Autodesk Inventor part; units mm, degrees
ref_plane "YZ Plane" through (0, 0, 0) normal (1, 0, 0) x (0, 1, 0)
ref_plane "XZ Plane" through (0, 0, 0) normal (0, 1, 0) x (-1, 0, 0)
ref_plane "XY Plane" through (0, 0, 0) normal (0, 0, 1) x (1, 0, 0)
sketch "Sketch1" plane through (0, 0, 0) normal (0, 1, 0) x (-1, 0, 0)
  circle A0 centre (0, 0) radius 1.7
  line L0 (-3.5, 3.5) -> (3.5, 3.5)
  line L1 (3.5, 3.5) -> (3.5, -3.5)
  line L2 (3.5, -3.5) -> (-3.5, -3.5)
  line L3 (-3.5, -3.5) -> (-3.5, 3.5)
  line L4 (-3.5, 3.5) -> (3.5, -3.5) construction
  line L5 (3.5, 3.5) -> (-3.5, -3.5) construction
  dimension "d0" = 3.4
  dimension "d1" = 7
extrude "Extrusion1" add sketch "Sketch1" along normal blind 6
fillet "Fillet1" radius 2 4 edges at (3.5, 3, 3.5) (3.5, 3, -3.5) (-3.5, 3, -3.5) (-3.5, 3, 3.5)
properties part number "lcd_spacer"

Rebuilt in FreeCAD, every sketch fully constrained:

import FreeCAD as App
import Part
import Sketcher
from FreeCAD import Vector
Q = App.Units.Quantity


def edges_at(feature, points):
    """Names of the edges that pass closest to the given points."""
    edges = feature.Shape.Edges
    near = lambda p: min(range(len(edges)), key=lambda i: edges[i].distToShape(Part.Vertex(*p))[0])
    return sorted({f"Edge{near(p) + 1}" for p in points})

doc = App.newDocument("Part")
body = doc.addObject("PartDesign::Body", "Body")

sketch1 = doc.addObject("Sketcher::SketchObject", "Sketch")
body.addObject(sketch1)
sketch1.AttachmentSupport = (doc.XZ_Plane, [""])
sketch1.MapMode = "FlatFace"
sketch1.addGeometry([
    Part.LineSegment(Vector(-3.5, 3.5, 0), Vector(3.5, 3.5, 0)),
    Part.LineSegment(Vector(3.5, 3.5, 0), Vector(3.5, -3.5, 0)),
    Part.LineSegment(Vector(3.5, -3.5, 0), Vector(-3.5, -3.5, 0)),
    Part.LineSegment(Vector(-3.5, -3.5, 0), Vector(-3.5, 3.5, 0)),
    Part.Circle(Vector(0, 0, 0), Vector(0, 0, 1), 1.7),
], False)
sketch1.addConstraint([
    Sketcher.Constraint("Coincident", 0, 2, 1, 1),
    Sketcher.Constraint("Coincident", 1, 2, 2, 1),
    Sketcher.Constraint("Coincident", 2, 2, 3, 1),
    Sketcher.Constraint("Coincident", 3, 2, 0, 1),
    Sketcher.Constraint("Horizontal", 0),
    Sketcher.Constraint("Vertical", 1),
    Sketcher.Constraint("Horizontal", 2),
    Sketcher.Constraint("Vertical", 3),
    Sketcher.Constraint("Coincident", 4, 3, -1, 1),
    Sketcher.Constraint("Symmetric", 0, 2, 2, 2, -1, 1),
    Sketcher.Constraint("Equal", 2, 1),
    Sketcher.Constraint("Diameter", 4, Q("3.4 mm")),
    Sketcher.Constraint("DistanceX", 0, 1, 0, 2, Q("7 mm")),
])
pad1 = doc.addObject("PartDesign::Pad", "Pad")
body.addObject(pad1)
pad1.Profile = sketch1
pad1.Length = 6
pad1.Reversed = True
doc.recompute()

fillet = doc.addObject("PartDesign::Fillet", "Fillet")
body.addObject(fillet)
fillet.Base = (pad1, edges_at(pad1, [
    (3.5, 3, 3.5),
    (3.5, 3, -3.5),
    (-3.5, 3, -3.5),
    (-3.5, 3, 3.5),
]))
fillet.Radius = 2

doc.recompute()
